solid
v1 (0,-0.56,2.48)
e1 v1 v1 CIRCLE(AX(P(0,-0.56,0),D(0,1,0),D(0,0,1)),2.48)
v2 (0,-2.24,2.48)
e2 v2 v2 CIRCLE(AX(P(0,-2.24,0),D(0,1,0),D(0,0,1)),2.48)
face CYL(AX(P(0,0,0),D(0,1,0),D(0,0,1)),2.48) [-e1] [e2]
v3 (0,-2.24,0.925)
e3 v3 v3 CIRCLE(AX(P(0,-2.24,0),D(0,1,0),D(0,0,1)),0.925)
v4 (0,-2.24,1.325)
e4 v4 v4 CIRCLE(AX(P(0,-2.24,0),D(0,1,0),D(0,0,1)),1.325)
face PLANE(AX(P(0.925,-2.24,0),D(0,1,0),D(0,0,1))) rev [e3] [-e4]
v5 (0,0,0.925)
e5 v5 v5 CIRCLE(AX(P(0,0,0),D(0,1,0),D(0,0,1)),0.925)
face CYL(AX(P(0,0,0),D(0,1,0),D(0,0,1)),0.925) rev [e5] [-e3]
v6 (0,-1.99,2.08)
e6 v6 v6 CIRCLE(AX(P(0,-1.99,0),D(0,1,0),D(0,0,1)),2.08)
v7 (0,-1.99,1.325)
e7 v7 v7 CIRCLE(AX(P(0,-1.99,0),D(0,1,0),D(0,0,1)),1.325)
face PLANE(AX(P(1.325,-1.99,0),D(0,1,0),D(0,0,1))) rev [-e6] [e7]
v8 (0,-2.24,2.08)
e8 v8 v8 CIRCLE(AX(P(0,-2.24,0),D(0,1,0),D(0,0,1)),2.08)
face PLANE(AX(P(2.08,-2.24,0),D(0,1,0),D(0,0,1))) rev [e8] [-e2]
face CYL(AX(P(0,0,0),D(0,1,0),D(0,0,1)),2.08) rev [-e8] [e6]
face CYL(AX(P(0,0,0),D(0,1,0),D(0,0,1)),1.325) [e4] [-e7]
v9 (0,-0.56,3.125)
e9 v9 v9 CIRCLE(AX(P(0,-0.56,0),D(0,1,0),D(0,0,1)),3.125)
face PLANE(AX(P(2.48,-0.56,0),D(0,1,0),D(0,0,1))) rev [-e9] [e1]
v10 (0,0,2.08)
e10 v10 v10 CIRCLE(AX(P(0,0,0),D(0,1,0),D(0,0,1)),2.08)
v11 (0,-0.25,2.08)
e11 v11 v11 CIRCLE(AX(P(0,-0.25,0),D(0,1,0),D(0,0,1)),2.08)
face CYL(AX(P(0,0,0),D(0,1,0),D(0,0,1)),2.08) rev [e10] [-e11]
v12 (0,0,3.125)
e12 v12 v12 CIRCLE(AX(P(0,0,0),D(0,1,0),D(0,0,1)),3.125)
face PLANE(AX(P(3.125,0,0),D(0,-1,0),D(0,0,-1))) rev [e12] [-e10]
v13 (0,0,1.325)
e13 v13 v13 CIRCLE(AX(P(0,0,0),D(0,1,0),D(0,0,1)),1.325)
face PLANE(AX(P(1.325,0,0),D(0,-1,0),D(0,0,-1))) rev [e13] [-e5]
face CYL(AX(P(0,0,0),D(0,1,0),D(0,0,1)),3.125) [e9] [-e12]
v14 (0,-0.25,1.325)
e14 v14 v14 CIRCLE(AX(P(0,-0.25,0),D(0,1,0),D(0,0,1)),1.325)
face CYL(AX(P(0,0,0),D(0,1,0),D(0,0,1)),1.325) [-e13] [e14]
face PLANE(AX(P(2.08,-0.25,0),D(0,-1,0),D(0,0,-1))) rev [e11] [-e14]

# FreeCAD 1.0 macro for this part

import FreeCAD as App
import Part
import Sketcher
Q = App.Units.Quantity


def add_polygon(sketch, points):
    """Adds a closed chain of lines whose ends are joined by coincident constraints."""
    first, n = sketch.GeometryCount, len(points)
    for a, b in zip(points, points[1:] + points[:1]):
        sketch.addGeometry(Part.LineSegment(App.Vector(*a, 0), App.Vector(*b, 0)), False)
    for i in range(n):
        sketch.addConstraint(Sketcher.Constraint("Coincident", first + i, 2, first + (i + 1) % n, 1))

doc = App.newDocument("Part")
body = doc.addObject("PartDesign::Body", "Body")

sketch1 = doc.addObject("Sketcher::SketchObject", "Sketch")
body.addObject(sketch1)
sketch1.AttachmentSupport = (doc.XY_Plane, [""])
sketch1.MapMode = "FlatFace"
add_polygon(sketch1, [(3.12, 0), (2.08, 0), (2.08, -0.25), (1.32, -0.25), (1.32, 0), (0.93, 0), (0.93, -2.24), (1.32, -2.24), (1.32, -1.99), (2.08, -1.99), (2.08, -2.24), (2.48, -2.24), (2.48, -0.56), (3.12, -0.56)])
sketch1.addConstraint([
    Sketcher.Constraint("Horizontal", 0),
    Sketcher.Constraint("Vertical", 1),
    Sketcher.Constraint("Horizontal", 2),
    Sketcher.Constraint("Vertical", 3),
    Sketcher.Constraint("Horizontal", 4),
    Sketcher.Constraint("Vertical", 5),
    Sketcher.Constraint("Horizontal", 6),
    Sketcher.Constraint("Vertical", 7),
    Sketcher.Constraint("Horizontal", 8),
    Sketcher.Constraint("Vertical", 9),
    Sketcher.Constraint("Horizontal", 10),
    Sketcher.Constraint("Vertical", 11),
    Sketcher.Constraint("Horizontal", 12),
    Sketcher.Constraint("Vertical", 13),
    Sketcher.Constraint("PointOnObject", 0, 2, -1),
    Sketcher.Constraint("PointOnObject", 3, 2, -1),
    Sketcher.Constraint("Horizontal", 6, 2, 9, 2),
    Sketcher.Constraint("Vertical", 3, 2, 6, 2),
    Sketcher.Constraint("Vertical", 1, 2, 8, 2),
    Sketcher.Constraint("Equal", 6, 10),
    Sketcher.Constraint("Equal", 3, 7),
    Sketcher.Constraint("DistanceX", 4, 2, 4, 1, Q("0.4 mm")),
    Sketcher.Constraint("DistanceY", 1, 2, 1, 1, Q("0.25 mm")),
    Sketcher.Constraint("DistanceY", 5, 2, 5, 1, Q("2.24 mm")),
    Sketcher.Constraint("DistanceY", 11, 1, 11, 2, Q("1.68 mm")),
    Sketcher.Constraint("DistanceX", 3, 2, 13, 2, Q("1.8 mm")),
    Sketcher.Constraint("DistanceX", 0, 2, 0, 1, Q("1.045 mm")),
    Sketcher.Constraint("DistanceX", -1, 1, 0, 2, Q("2.08 mm")),
])
revolution = doc.addObject("PartDesign::Revolution", "Revolution")
body.addObject(revolution)
revolution.Profile = sketch1
revolution.ReferenceAxis = (sketch1, ["V_Axis"])
revolution.Angle = 360

doc.recompute()
